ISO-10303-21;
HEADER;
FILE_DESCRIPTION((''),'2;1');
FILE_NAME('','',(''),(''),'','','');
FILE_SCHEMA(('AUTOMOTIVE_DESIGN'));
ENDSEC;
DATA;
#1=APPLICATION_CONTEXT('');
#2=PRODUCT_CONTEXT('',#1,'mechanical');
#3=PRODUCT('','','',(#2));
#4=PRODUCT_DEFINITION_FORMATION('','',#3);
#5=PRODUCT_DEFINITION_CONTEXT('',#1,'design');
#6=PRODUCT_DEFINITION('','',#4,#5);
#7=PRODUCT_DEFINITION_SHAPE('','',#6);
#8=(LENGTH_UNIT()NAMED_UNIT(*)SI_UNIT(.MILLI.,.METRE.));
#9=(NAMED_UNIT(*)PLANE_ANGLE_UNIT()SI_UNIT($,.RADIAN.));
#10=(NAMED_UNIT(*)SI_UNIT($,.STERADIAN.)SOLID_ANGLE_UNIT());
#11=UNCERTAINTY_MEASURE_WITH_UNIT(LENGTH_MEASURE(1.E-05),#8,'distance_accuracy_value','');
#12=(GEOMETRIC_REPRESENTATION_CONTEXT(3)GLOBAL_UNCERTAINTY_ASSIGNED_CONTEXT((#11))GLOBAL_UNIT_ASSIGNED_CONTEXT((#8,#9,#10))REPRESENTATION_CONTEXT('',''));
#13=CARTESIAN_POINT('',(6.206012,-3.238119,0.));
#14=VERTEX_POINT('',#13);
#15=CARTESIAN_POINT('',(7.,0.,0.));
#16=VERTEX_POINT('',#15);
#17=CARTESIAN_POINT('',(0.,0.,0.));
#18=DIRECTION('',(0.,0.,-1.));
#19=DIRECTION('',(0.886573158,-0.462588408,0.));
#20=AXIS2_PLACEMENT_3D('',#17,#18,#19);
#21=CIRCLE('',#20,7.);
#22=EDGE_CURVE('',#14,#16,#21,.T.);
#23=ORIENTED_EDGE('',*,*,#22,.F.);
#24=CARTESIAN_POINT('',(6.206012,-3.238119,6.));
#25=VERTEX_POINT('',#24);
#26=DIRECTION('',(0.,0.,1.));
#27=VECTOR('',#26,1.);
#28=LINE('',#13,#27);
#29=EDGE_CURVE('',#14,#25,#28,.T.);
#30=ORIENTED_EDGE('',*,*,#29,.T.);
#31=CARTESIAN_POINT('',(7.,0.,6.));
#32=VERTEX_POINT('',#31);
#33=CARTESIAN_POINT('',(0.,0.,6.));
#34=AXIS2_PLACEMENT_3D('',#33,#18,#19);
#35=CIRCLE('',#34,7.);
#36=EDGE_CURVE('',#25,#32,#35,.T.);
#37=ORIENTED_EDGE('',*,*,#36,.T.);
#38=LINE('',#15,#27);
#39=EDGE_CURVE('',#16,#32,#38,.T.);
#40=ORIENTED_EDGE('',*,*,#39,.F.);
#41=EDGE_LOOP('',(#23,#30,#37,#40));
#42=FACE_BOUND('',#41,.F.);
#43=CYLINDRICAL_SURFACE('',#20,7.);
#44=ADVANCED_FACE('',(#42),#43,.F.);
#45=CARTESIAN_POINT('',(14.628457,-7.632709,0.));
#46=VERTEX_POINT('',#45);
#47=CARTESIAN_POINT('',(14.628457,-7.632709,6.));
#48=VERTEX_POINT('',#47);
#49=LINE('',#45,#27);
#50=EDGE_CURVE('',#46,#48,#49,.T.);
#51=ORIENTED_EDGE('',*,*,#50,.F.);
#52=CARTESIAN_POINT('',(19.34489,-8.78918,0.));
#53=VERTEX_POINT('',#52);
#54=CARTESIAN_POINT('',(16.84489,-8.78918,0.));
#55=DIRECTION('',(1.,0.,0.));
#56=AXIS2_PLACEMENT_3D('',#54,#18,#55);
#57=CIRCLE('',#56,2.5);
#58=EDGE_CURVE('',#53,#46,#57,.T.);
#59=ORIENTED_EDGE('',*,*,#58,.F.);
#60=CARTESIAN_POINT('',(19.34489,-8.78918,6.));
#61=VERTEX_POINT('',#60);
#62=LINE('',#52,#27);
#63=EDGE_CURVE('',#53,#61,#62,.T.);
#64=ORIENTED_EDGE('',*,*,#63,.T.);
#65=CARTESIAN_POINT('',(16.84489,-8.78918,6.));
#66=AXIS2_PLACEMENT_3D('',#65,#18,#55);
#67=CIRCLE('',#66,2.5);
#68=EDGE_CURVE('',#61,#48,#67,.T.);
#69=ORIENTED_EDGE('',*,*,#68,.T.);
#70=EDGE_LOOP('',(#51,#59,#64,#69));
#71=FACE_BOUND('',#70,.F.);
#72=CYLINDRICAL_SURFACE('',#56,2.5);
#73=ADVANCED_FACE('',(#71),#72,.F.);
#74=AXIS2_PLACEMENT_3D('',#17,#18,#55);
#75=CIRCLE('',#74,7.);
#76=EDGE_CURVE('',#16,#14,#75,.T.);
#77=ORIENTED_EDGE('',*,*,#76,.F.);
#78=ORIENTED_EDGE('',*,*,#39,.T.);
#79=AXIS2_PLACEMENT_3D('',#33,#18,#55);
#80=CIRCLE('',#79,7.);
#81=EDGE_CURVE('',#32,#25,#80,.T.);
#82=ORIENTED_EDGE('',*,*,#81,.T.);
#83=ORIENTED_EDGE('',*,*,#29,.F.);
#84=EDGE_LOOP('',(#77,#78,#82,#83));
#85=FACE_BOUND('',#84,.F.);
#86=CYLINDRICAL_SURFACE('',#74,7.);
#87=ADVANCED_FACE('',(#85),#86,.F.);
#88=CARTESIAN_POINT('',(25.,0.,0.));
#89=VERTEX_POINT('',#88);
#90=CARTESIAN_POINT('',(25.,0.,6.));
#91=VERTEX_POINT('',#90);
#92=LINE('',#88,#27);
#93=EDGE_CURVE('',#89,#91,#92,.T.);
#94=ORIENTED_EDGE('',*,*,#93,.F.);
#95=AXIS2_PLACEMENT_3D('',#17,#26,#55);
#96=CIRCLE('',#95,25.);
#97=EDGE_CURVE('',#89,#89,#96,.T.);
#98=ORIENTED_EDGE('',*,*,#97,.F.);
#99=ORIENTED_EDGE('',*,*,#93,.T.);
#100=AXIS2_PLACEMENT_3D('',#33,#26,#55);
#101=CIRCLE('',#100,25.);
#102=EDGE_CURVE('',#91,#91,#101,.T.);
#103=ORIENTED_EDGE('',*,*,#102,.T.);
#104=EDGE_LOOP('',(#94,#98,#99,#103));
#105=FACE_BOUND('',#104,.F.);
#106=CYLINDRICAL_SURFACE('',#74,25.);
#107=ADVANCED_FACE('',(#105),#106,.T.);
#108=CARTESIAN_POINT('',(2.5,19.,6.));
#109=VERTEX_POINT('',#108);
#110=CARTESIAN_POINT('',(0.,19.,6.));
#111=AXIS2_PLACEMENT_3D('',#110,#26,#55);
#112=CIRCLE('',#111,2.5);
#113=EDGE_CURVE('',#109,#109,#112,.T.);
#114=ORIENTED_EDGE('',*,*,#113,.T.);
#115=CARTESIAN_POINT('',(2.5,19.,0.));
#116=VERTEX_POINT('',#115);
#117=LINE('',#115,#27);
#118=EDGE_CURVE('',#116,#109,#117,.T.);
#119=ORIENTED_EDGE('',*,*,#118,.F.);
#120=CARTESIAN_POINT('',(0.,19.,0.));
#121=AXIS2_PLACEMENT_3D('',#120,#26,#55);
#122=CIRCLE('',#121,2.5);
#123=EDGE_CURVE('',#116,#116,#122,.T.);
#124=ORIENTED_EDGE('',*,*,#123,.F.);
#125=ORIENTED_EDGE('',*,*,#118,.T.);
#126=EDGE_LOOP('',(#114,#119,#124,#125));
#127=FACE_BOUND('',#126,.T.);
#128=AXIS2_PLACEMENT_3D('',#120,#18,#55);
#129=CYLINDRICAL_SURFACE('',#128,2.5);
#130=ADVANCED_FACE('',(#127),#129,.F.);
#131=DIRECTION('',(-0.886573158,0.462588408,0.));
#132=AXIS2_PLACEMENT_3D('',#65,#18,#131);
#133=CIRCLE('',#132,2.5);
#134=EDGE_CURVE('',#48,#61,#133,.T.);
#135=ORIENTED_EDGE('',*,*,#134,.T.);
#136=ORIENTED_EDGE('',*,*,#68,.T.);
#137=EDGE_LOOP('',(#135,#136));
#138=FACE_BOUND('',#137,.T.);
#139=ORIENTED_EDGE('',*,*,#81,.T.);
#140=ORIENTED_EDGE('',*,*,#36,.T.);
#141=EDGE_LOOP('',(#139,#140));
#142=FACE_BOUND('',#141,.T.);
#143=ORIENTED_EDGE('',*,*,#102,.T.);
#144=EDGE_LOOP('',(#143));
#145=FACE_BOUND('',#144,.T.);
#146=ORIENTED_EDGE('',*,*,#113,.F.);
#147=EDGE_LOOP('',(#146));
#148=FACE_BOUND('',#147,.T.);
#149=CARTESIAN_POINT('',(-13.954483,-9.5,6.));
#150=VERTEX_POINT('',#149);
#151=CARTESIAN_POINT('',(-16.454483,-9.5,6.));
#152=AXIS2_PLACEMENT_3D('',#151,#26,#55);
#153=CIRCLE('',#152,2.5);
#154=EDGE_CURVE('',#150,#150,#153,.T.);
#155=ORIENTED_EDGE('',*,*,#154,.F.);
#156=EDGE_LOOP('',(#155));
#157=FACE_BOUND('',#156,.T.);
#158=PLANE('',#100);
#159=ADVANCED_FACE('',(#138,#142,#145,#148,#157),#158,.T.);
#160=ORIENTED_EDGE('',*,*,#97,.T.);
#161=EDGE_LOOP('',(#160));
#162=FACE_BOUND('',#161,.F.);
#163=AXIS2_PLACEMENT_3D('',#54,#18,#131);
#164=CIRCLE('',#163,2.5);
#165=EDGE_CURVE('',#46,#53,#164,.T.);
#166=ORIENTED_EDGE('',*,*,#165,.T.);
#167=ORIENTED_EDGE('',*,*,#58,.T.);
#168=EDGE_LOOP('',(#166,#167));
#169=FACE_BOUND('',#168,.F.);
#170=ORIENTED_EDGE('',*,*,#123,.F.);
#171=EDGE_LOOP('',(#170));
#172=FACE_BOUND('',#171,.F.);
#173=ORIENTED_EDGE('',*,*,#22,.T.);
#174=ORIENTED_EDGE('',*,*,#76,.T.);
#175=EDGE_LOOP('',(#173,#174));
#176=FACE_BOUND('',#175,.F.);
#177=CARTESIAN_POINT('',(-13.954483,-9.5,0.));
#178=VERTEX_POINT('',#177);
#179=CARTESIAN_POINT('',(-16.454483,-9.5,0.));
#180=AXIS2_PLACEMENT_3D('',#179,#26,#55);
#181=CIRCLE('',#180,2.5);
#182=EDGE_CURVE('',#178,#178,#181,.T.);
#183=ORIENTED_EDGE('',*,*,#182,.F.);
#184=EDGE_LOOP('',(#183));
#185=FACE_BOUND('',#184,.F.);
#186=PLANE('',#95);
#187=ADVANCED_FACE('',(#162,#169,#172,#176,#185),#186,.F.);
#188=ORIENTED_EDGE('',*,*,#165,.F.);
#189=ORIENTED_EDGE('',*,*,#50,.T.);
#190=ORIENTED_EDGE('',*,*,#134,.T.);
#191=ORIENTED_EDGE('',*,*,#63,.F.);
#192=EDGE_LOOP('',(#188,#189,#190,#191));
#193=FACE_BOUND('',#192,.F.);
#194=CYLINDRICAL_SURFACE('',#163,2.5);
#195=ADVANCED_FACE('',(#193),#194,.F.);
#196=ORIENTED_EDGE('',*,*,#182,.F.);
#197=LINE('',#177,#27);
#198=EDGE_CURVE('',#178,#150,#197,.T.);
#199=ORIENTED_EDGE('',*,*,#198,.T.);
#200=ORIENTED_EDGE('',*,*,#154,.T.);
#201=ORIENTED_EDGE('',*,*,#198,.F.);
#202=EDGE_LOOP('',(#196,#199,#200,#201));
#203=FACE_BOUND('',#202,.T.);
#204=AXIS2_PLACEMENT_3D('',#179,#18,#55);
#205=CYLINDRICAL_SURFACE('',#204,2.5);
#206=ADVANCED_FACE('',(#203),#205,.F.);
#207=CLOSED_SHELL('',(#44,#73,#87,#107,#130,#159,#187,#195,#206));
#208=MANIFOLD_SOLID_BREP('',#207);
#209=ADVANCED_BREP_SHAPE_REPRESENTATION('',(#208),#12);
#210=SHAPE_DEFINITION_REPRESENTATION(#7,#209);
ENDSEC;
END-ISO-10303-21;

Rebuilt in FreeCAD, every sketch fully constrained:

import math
import FreeCAD as App
import Part
import Sketcher

V = App.Vector
Q = App.Units.Quantity

doc = App.newDocument("Part")
body = doc.addObject("PartDesign::Body", "Body")

sketch1 = body.newObject("Sketcher::SketchObject", "Sketch")
sketch1.AttachmentSupport = (doc.getObject("XY_Plane"), [""])
sketch1.MapMode = "FlatFace"
sketch1.addGeometry(Part.Circle(V(0, 0, 0), V(0, 0, 1), 25), False)
sketch1.addGeometry(Part.Circle(V(-16.454483, -9.5, 0), V(0, 0, 1), 2.5), False)
sketch1.addGeometry(Part.ArcOfCircle(Part.Circle(V(0, 0, 0), V(0, 0, 1), 7), math.radians(-27.554259), math.radians(0)), False)
sketch1.addGeometry(Part.ArcOfCircle(Part.Circle(V(0, 0, 0), V(0, 0, 1), 7), math.radians(0), math.radians(332.445741)), False)
sketch1.addGeometry(Part.ArcOfCircle(Part.Circle(V(16.84489, -8.78918, 0), V(0, 0, 1), 2.5), math.radians(0), math.radians(152.445741)), False)
sketch1.addGeometry(Part.ArcOfCircle(Part.Circle(V(16.84489, -8.78918, 0), V(0, 0, 1), 2.5), math.radians(152.445741), math.radians(360)), False)
sketch1.addGeometry(Part.Circle(V(0, 19, 0), V(0, 0, 1), 2.5), False)
sketch1.addConstraint(Sketcher.Constraint("Tangent", 2, 1, 3, 2))
sketch1.addConstraint(Sketcher.Constraint("Coincident", 3, 1, 2, 2))
sketch1.addConstraint(Sketcher.Constraint("Tangent", 4, 1, 5, 2))
sketch1.addConstraint(Sketcher.Constraint("Coincident", 5, 1, 4, 2))
sketch1.addConstraint(Sketcher.Constraint("Coincident", 0, 3, -1, 1))
sketch1.addConstraint(Sketcher.Constraint("Coincident", 2, 3, -1, 1))
sketch1.addConstraint(Sketcher.Constraint("Equal", 1, 4))
sketch1.addConstraint(Sketcher.Constraint("Equal", 5, 6))
sketch1.addConstraint(Sketcher.Constraint("PointOnObject", 6, 3, -2))
sketch1.addConstraint(Sketcher.Constraint("PointOnObject", 3, 1, -1))
sketch1.addConstraint(Sketcher.Constraint("Horizontal", 5, 3, 4, 1))
sketch1.addConstraint(Sketcher.Constraint("Diameter", 0, Q("50 mm")))
sketch1.addConstraint(Sketcher.Constraint("Diameter", 1, Q("5 mm")))
sketch1.addConstraint(Sketcher.Constraint("Radius", 2, Q("7 mm")))
sketch1.addConstraint(Sketcher.Constraint("DistanceY", -1, 1, 6, 3, Q("19 mm")))
sketch1.addConstraint(Sketcher.Constraint("DistanceY", 1, 3, -1, 1, Q("9.5 mm")))
sketch1.addConstraint(Sketcher.Constraint("DistanceX", -1, 1, 4, 3, Q("16.84489 mm")))
sketch1.addConstraint(Sketcher.Constraint("DistanceY", 4, 3, -1, 1, Q("8.78918 mm")))
sketch1.addConstraint(Sketcher.Constraint("DistanceY", 2, 1, -1, 1, Q("3.238119 mm")))
sketch1.addConstraint(Sketcher.Constraint("DistanceY", 5, 1, -1, 1, Q("7.632709 mm")))
sketch1.addConstraint(Sketcher.Constraint("DistanceX", 1, 3, -1, 1, Q("16.454483 mm")))
pad1 = body.newObject("PartDesign::Pad", "Pad")
pad1.Profile = sketch1
pad1.Length = 6

doc.recompute()
